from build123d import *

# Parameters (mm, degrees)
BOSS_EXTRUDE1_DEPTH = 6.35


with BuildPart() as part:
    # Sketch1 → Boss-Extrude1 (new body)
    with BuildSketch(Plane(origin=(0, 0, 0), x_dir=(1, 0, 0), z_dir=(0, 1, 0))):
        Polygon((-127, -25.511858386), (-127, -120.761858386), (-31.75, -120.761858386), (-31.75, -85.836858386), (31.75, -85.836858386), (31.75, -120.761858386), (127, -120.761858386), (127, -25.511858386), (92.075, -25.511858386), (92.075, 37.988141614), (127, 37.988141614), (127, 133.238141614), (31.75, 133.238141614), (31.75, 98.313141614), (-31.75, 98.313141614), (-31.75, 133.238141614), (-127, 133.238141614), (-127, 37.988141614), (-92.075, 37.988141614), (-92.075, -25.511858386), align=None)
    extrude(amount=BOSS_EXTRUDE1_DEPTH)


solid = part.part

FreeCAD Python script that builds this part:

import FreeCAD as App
import Part
import Sketcher

V = App.Vector
Q = App.Units.Quantity

doc = App.newDocument("Part")
body = doc.addObject("PartDesign::Body", "Body")

sketch1 = body.newObject("Sketcher::SketchObject", "Sketch")
sketch1.AttachmentSupport = (doc.getObject("XZ_Plane"), [""])
sketch1.MapMode = "FlatFace"
sketch1.addGeometry(Part.LineSegment(V(-127, 25.511858, 0), V(-127, 120.761858, 0)), False)
sketch1.addGeometry(Part.LineSegment(V(-127, 120.761858, 0), V(-31.75, 120.761858, 0)), False)
sketch1.addGeometry(Part.LineSegment(V(-31.75, 120.761858, 0), V(-31.75, 85.836858, 0)), False)
sketch1.addGeometry(Part.LineSegment(V(-31.75, 85.836858, 0), V(31.75, 85.836858, 0)), False)
sketch1.addGeometry(Part.LineSegment(V(31.75, 85.836858, 0), V(31.75, 120.761858, 0)), False)
sketch1.addGeometry(Part.LineSegment(V(31.75, 120.761858, 0), V(127, 120.761858, 0)), False)
sketch1.addGeometry(Part.LineSegment(V(127, 120.761858, 0), V(127, 25.511858, 0)), False)
sketch1.addGeometry(Part.LineSegment(V(127, 25.511858, 0), V(92.075, 25.511858, 0)), False)
sketch1.addGeometry(Part.LineSegment(V(92.075, 25.511858, 0), V(92.075, -37.988142, 0)), False)
sketch1.addGeometry(Part.LineSegment(V(92.075, -37.988142, 0), V(127, -37.988142, 0)), False)
sketch1.addGeometry(Part.LineSegment(V(127, -37.988142, 0), V(127, -133.238142, 0)), False)
sketch1.addGeometry(Part.LineSegment(V(127, -133.238142, 0), V(31.75, -133.238142, 0)), False)
sketch1.addGeometry(Part.LineSegment(V(31.75, -133.238142, 0), V(31.75, -98.313142, 0)), False)
sketch1.addGeometry(Part.LineSegment(V(31.75, -98.313142, 0), V(-31.75, -98.313142, 0)), False)
sketch1.addGeometry(Part.LineSegment(V(-31.75, -98.313142, 0), V(-31.75, -133.238142, 0)), False)
sketch1.addGeometry(Part.LineSegment(V(-31.75, -133.238142, 0), V(-127, -133.238142, 0)), False)
sketch1.addGeometry(Part.LineSegment(V(-127, -133.238142, 0), V(-127, -37.988142, 0)), False)
sketch1.addGeometry(Part.LineSegment(V(-127, -37.988142, 0), V(-92.075, -37.988142, 0)), False)
sketch1.addGeometry(Part.LineSegment(V(-92.075, -37.988142, 0), V(-92.075, 25.511858, 0)), False)
sketch1.addGeometry(Part.LineSegment(V(-92.075, 25.511858, 0), V(-127, 25.511858, 0)), False)
sketch1.addConstraint(Sketcher.Constraint("Coincident", 0, 2, 1, 1))
sketch1.addConstraint(Sketcher.Constraint("Coincident", 1, 2, 2, 1))
sketch1.addConstraint(Sketcher.Constraint("Coincident", 2, 2, 3, 1))
sketch1.addConstraint(Sketcher.Constraint("Coincident", 3, 2, 4, 1))
sketch1.addConstraint(Sketcher.Constraint("Coincident", 4, 2, 5, 1))
sketch1.addConstraint(Sketcher.Constraint("Coincident", 5, 2, 6, 1))
sketch1.addConstraint(Sketcher.Constraint("Coincident", 6, 2, 7, 1))
sketch1.addConstraint(Sketcher.Constraint("Coincident", 7, 2, 8, 1))
sketch1.addConstraint(Sketcher.Constraint("Coincident", 8, 2, 9, 1))
sketch1.addConstraint(Sketcher.Constraint("Coincident", 9, 2, 10, 1))
sketch1.addConstraint(Sketcher.Constraint("Coincident", 10, 2, 11, 1))
sketch1.addConstraint(Sketcher.Constraint("Coincident", 11, 2, 12, 1))
sketch1.addConstraint(Sketcher.Constraint("Coincident", 12, 2, 13, 1))
sketch1.addConstraint(Sketcher.Constraint("Coincident", 13, 2, 14, 1))
sketch1.addConstraint(Sketcher.Constraint("Coincident", 14, 2, 15, 1))
sketch1.addConstraint(Sketcher.Constraint("Coincident", 15, 2, 16, 1))
sketch1.addConstraint(Sketcher.Constraint("Coincident", 16, 2, 17, 1))
sketch1.addConstraint(Sketcher.Constraint("Coincident", 17, 2, 18, 1))
sketch1.addConstraint(Sketcher.Constraint("Coincident", 18, 2, 19, 1))
sketch1.addConstraint(Sketcher.Constraint("Coincident", 19, 2, 0, 1))
sketch1.addConstraint(Sketcher.Constraint("Vertical", 0))
sketch1.addConstraint(Sketcher.Constraint("Horizontal", 1))
sketch1.addConstraint(Sketcher.Constraint("Vertical", 2))
sketch1.addConstraint(Sketcher.Constraint("Horizontal", 3))
sketch1.addConstraint(Sketcher.Constraint("Vertical", 4))
sketch1.addConstraint(Sketcher.Constraint("Horizontal", 5))
sketch1.addConstraint(Sketcher.Constraint("Vertical", 6))
sketch1.addConstraint(Sketcher.Constraint("Horizontal", 7))
sketch1.addConstraint(Sketcher.Constraint("Vertical", 8))
sketch1.addConstraint(Sketcher.Constraint("Horizontal", 9))
sketch1.addConstraint(Sketcher.Constraint("Vertical", 10))
sketch1.addConstraint(Sketcher.Constraint("Horizontal", 11))
sketch1.addConstraint(Sketcher.Constraint("Vertical", 12))
sketch1.addConstraint(Sketcher.Constraint("Horizontal", 13))
sketch1.addConstraint(Sketcher.Constraint("Vertical", 14))
sketch1.addConstraint(Sketcher.Constraint("Horizontal", 15))
sketch1.addConstraint(Sketcher.Constraint("Vertical", 16))
sketch1.addConstraint(Sketcher.Constraint("Horizontal", 17))
sketch1.addConstraint(Sketcher.Constraint("Vertical", 18))
sketch1.addConstraint(Sketcher.Constraint("Horizontal", 19))
sketch1.addConstraint(Sketcher.Constraint("Symmetric", 1, 2, 4, 2, -2))
sketch1.addConstraint(Sketcher.Constraint("Symmetric", 11, 2, 14, 2, -2))
sketch1.addConstraint(Sketcher.Constraint("Symmetric", 9, 2, 16, 2, -2))
sketch1.addConstraint(Sketcher.Constraint("Symmetric", 7, 2, 18, 2, -2))
sketch1.addConstraint(Sketcher.Constraint("Vertical", 6, 2, 9, 2))
sketch1.addConstraint(Sketcher.Constraint("Vertical", 4, 2, 11, 2))
sketch1.addConstraint(Sketcher.Constraint("Vertical", 0, 2, 15, 2))
sketch1.addConstraint(Sketcher.Constraint("Equal", 15, 0))
sketch1.addConstraint(Sketcher.Constraint("Equal", 19, 2))
sketch1.addConstraint(Sketcher.Constraint("Equal", 13, 8))
sketch1.addConstraint(Sketcher.Constraint("Equal", 6, 10))
sketch1.addConstraint(Sketcher.Constraint("Equal", 4, 12))
sketch1.addConstraint(Sketcher.Constraint("DistanceX", 3, 1, 3, 2, Q("2.5 in")))
sketch1.addConstraint(Sketcher.Constraint("DistanceX", 0, 2, -1, 1, Q("5 in")))
sketch1.addConstraint(Sketcher.Constraint("DistanceX", 7, 2, 7, 1, Q("1.375 in")))
sketch1.addConstraint(Sketcher.Constraint("DistanceY", -1, 1, 0, 2, 120.761858))
pad1 = body.newObject("PartDesign::Pad", "Pad")
pad1.Profile = sketch1
pad1.Length = Q("0.25 in")
pad1.Reversed = True

doc.recompute()
